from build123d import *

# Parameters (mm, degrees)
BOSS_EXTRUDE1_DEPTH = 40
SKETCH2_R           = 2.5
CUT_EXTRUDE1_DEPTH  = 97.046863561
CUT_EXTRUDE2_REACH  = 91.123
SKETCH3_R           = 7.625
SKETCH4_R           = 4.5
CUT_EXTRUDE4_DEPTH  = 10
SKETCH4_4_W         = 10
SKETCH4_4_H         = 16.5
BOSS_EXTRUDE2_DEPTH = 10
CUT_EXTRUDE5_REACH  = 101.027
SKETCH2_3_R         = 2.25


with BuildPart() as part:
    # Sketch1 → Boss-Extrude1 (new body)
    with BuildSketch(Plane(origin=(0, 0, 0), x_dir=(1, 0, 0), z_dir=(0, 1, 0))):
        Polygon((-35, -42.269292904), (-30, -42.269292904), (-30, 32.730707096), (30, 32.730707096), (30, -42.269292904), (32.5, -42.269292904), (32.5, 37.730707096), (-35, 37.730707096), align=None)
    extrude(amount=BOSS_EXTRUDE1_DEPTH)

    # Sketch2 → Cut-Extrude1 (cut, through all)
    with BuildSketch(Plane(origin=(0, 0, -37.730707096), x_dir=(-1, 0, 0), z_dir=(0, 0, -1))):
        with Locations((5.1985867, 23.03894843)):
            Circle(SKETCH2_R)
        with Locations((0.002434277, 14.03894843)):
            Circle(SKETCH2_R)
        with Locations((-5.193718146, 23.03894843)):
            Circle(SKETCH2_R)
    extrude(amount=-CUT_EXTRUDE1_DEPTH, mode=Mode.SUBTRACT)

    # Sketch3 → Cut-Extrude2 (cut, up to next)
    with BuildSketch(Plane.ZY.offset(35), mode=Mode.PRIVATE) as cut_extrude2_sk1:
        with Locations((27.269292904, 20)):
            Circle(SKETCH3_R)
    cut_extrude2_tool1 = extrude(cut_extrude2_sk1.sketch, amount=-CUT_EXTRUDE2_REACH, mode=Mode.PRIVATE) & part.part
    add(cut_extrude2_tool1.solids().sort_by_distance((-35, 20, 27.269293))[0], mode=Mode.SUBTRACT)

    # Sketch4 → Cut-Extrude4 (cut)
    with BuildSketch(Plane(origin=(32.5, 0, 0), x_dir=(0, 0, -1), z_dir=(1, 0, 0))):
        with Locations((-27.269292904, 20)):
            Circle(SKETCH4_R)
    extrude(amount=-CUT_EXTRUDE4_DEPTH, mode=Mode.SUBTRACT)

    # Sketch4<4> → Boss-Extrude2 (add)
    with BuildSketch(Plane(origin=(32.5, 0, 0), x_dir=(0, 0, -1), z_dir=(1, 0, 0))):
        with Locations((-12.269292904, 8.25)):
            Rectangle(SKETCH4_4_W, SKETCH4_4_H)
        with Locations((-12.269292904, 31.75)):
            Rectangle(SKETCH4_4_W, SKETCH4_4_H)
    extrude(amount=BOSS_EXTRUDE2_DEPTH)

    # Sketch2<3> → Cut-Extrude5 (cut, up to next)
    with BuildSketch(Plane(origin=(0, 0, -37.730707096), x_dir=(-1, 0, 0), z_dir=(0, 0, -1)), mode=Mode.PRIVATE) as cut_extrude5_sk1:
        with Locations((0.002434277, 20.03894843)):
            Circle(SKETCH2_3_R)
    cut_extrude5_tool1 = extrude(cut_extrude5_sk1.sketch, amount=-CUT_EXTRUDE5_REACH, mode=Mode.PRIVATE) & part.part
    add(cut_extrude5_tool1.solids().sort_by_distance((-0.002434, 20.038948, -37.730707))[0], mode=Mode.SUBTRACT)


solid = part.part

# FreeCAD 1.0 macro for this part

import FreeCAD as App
import Part
import Sketcher

V = App.Vector
Q = App.Units.Quantity


def add_polygon(sketch, points):
    """Adds a closed chain of lines whose ends are joined by coincident constraints."""
    first, n = sketch.GeometryCount, len(points)
    for a, b in zip(points, points[1:] + points[:1]):
        sketch.addGeometry(Part.LineSegment(App.Vector(*a, 0), App.Vector(*b, 0)), False)
    for i in range(n):
        sketch.addConstraint(Sketcher.Constraint("Coincident", first + i, 2, first + (i + 1) % n, 1))

doc = App.newDocument("Part")
body = doc.addObject("PartDesign::Body", "Body")

sketch1 = body.newObject("Sketcher::SketchObject", "Sketch")
sketch1.AttachmentSupport = (doc.getObject("XZ_Plane"), [""])
sketch1.MapMode = "FlatFace"
add_polygon(sketch1, [(-35, 42.269293), (-30, 42.269293), (-30, -32.730707), (30, -32.730707), (30, 42.269293), (32.5, 42.269293), (32.5, -37.730707), (-35, -37.730707)])
sketch1.addConstraint([
    Sketcher.Constraint("Horizontal", 0),
    Sketcher.Constraint("Vertical", 1),
    Sketcher.Constraint("Horizontal", 2),
    Sketcher.Constraint("Vertical", 3),
    Sketcher.Constraint("Horizontal", 4),
    Sketcher.Constraint("Vertical", 5),
    Sketcher.Constraint("Horizontal", 6),
    Sketcher.Constraint("Vertical", 7),
    Sketcher.Constraint("Symmetric", 0, 2, 3, 2, -2),
    Sketcher.Constraint("DistanceX", 0, 1, 0, 2, Q("5 mm")),
    Sketcher.Constraint("DistanceX", 2, 1, 2, 2, Q("60 mm")),
    Sketcher.Constraint("DistanceY", 1, 2, 1, 1, Q("75 mm")),
    Sketcher.Constraint("DistanceY", 5, 2, 5, 1, Q("80 mm")),
    Sketcher.Constraint("DistanceX", 4, 1, 4, 2, Q("2.5 mm")),
    Sketcher.Constraint("DistanceY", -1, 1, 0, 2, Q("42.269293 mm")),
])
pad1 = body.newObject("PartDesign::Pad", "Pad")
pad1.Profile = sketch1
pad1.Length = 40
pad1.Reversed = True

sketch2 = body.newObject("Sketcher::SketchObject", "Sketch001")
sketch2.AttachmentSupport = (doc.getObject("XY_Plane"), [""])
sketch2.MapMode = "FlatFace"
sketch2.AttachmentOffset = App.Placement(V(0, 0, -37.730707), App.Rotation())
sketch2.addGeometry([
    Part.Circle(V(-5.198587, 23.038948, 0), V(0, 0, 1), 2.5),
    Part.Circle(V(-0.002434, 14.038948, 0), V(0, 0, 1), 2.5),
    Part.Circle(V(5.193718, 23.038948, 0), V(0, 0, 1), 2.5),
], False)
sketch2.addConstraint([
    Sketcher.Constraint("Equal", 0, 1),
    Sketcher.Constraint("Equal", 1, 2),
    Sketcher.Constraint("Horizontal", 0, 3, 2, 3),
    Sketcher.Constraint("Diameter", 0, Q("5 mm")),
    Sketcher.Constraint("DistanceY", 1, 3, 0, 3, Q("9 mm")),
    Sketcher.Constraint("DistanceY", -1, 1, 0, 3, Q("23.038948 mm")),
    Sketcher.Constraint("DistanceX", -1, 1, 2, 3, Q("5.193718 mm")),
    Sketcher.Constraint("DistanceX", 0, 3, -1, 1, Q("5.198587 mm")),
    Sketcher.Constraint("DistanceX", 1, 3, -1, 1, Q("0.002434 mm")),
])
pocket1 = body.newObject("PartDesign::Pocket", "Pocket")
pocket1.Profile = sketch2
pocket1.Type = "ThroughAll"
pocket1.Reversed = True

sketch3 = body.newObject("Sketcher::SketchObject", "Sketch002")
sketch3.AttachmentSupport = (doc.getObject("YZ_Plane"), [""])
sketch3.MapMode = "FlatFace"
sketch3.AttachmentOffset = App.Placement(V(0, 0, -35), App.Rotation())
sketch3.addGeometry(Part.Circle(V(20, 27.269293, 0), V(0, 0, 1), 7.625), False)
sketch3.addConstraint([
    Sketcher.Constraint("Diameter", 0, Q("15.25 mm")),
    Sketcher.Constraint("DistanceX", -1, 1, 0, 3, Q("20 mm")),
    Sketcher.Constraint("DistanceY", -1, 1, 0, 3, Q("27.269293 mm")),
])
pocket2 = body.newObject("PartDesign::Pocket", "Pocket001")
pocket2.Profile = sketch3
pocket2.Type = "UpToFirst"
pocket2.Reversed = True

sketch4 = body.newObject("Sketcher::SketchObject", "Sketch003")
sketch4.AttachmentSupport = (doc.getObject("YZ_Plane"), [""])
sketch4.MapMode = "FlatFace"
sketch4.AttachmentOffset = App.Placement(V(0, 0, 32.5), App.Rotation())
sketch4.addGeometry(Part.Circle(V(20, 27.269293, 0), V(0, 0, 1), 4.5), False)
sketch4.addConstraint([
    Sketcher.Constraint("Diameter", 0, Q("9 mm")),
    Sketcher.Constraint("DistanceX", -1, 1, 0, 3, Q("20 mm")),
    Sketcher.Constraint("DistanceY", -1, 1, 0, 3, Q("27.269293 mm")),
])
pocket3 = body.newObject("PartDesign::Pocket", "Pocket002")
pocket3.Profile = sketch4
pocket3.Length = 10

sketch5 = body.newObject("Sketcher::SketchObject", "Sketch004")
sketch5.AttachmentSupport = (doc.getObject("YZ_Plane"), [""])
sketch5.MapMode = "FlatFace"
sketch5.AttachmentOffset = App.Placement(V(0, 0, 32.5), App.Rotation())
add_polygon(sketch5, [(16.5, 17.269293), (0, 17.269293), (0, 7.269293), (16.5, 7.269293)])
add_polygon(sketch5, [(40, 17.269293), (23.5, 17.269293), (23.5, 7.269293), (40, 7.269293)])
sketch5.addConstraint([
    Sketcher.Constraint("Horizontal", 0),
    Sketcher.Constraint("Vertical", 1),
    Sketcher.Constraint("Horizontal", 2),
    Sketcher.Constraint("Vertical", 3),
    Sketcher.Constraint("Horizontal", 4),
    Sketcher.Constraint("Vertical", 5),
    Sketcher.Constraint("Horizontal", 6),
    Sketcher.Constraint("Vertical", 7),
    Sketcher.Constraint("PointOnObject", 0, 2, -2),
    Sketcher.Constraint("Horizontal", 3, 2, 4, 2),
    Sketcher.Constraint("Horizontal", 2, 2, 5, 2),
    Sketcher.Constraint("Equal", 2, 4),
    Sketcher.Constraint("DistanceY", 1, 2, 1, 1, Q("10 mm")),
    Sketcher.Constraint("DistanceX", 0, 2, 0, 1, Q("16.5 mm")),
    Sketcher.Constraint("DistanceX", -1, 1, 6, 2, Q("40 mm")),
    Sketcher.Constraint("DistanceY", -1, 1, 0, 2, Q("17.269293 mm")),
])
pad2 = body.newObject("PartDesign::Pad", "Pad001")
pad2.Profile = sketch5
pad2.Length = 10

sketch6 = body.newObject("Sketcher::SketchObject", "Sketch005")
sketch6.AttachmentSupport = (doc.getObject("XY_Plane"), [""])
sketch6.MapMode = "FlatFace"
sketch6.AttachmentOffset = App.Placement(V(0, 0, -37.730707), App.Rotation())
sketch6.addGeometry(Part.Circle(V(-0.002434, 20.038948, 0), V(0, 0, 1), 2.25), False)
sketch6.addConstraint([
    Sketcher.Constraint("Diameter", 0, Q("4.5 mm")),
    Sketcher.Constraint("DistanceY", -1, 1, 0, 3, Q("20.038948 mm")),
    Sketcher.Constraint("DistanceX", 0, 3, -1, 1, Q("0.002434 mm")),
])
pocket4 = body.newObject("PartDesign::Pocket", "Pocket003")
pocket4.Profile = sketch6
pocket4.Type = "UpToFirst"
pocket4.Reversed = True

doc.recompute()
